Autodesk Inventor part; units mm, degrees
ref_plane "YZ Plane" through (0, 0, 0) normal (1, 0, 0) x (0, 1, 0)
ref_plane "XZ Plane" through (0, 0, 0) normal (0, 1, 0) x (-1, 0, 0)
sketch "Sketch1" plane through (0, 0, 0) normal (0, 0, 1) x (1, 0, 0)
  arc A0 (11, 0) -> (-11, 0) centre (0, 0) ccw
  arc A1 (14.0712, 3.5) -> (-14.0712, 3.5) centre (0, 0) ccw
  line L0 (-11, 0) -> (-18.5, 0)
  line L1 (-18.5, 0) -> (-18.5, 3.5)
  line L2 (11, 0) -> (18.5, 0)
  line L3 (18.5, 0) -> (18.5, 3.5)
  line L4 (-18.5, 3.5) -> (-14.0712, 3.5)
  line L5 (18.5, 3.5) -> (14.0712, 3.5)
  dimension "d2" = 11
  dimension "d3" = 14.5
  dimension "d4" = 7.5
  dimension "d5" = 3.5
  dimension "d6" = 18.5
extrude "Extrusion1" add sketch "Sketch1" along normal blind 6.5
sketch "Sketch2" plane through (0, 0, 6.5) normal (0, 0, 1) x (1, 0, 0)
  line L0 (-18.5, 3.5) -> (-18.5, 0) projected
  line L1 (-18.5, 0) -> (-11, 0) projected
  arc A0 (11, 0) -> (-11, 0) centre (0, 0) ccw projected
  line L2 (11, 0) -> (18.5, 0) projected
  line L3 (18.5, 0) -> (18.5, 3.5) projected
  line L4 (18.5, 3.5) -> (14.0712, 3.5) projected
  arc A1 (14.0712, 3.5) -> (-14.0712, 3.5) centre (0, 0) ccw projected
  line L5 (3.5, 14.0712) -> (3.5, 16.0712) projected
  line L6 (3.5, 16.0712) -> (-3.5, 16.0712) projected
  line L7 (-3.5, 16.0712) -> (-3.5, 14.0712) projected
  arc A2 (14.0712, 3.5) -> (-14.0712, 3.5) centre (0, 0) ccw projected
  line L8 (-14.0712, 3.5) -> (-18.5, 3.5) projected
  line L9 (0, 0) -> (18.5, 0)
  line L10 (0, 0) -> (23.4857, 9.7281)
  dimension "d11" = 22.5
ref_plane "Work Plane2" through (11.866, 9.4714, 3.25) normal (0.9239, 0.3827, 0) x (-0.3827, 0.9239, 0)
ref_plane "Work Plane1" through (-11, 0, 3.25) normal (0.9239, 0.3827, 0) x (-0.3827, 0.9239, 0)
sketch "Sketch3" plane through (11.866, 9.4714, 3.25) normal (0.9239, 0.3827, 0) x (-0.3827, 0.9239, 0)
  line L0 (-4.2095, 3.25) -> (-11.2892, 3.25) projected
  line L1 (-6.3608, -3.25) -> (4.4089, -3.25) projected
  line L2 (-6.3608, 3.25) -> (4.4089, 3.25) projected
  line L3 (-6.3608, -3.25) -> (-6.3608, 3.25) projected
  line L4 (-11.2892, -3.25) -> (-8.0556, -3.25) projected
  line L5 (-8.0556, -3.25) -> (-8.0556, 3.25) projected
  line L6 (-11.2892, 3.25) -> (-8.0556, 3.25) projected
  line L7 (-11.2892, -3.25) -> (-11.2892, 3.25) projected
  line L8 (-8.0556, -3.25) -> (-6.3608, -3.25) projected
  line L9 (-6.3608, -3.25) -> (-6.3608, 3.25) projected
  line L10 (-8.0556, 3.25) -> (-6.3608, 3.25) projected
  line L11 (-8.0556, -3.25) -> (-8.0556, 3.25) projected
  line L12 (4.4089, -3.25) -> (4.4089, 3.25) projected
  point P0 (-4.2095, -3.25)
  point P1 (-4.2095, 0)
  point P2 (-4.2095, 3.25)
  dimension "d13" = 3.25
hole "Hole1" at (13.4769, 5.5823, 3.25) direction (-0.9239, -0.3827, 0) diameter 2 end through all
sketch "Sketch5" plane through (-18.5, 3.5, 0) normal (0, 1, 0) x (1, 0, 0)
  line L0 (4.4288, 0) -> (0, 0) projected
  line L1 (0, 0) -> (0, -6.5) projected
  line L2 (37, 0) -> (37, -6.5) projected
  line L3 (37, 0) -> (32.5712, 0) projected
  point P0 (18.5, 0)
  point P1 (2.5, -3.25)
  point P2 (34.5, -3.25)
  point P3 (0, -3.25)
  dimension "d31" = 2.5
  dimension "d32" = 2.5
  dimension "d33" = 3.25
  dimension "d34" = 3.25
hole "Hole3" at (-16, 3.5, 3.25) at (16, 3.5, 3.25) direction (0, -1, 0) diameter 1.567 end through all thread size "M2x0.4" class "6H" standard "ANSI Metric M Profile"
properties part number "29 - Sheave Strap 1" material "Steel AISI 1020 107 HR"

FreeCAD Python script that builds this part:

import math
import FreeCAD as App
import Part
import Sketcher

doc = App.newDocument("Part")
params = doc.addObject("Spreadsheet::Sheet", "Params")
for row, (alias, value) in enumerate([
    ("sketch1_radius", "11 mm"),
    ("sketch1_radius2", "14.5 mm"),
    ("sketch1_width", "7.5 mm"),
    ("sketch1_height", "3.5 mm"),
    ("pad1_length", "6.5 mm"),
    ("sketch2_diameter", "2 mm"),
    ("hole_diameter", "2 mm"),
    ("hole2_diameter", "1.567 mm"),
], start=1):
    params.set(f"A{row}", alias)
    params.set(f"B{row}", "=" + value)
    params.setAlias(f"B{row}", alias)

body = doc.addObject("PartDesign::Body", "Body")

# Sketch on XY plane
sketch1 = body.newObject("Sketcher::SketchObject", "Sketch")
sketch1.AttachmentSupport = (doc.getObject("XY_Plane"), [""])
sketch1.MapMode = "FlatFace"
sketch1.addGeometry(Part.ArcOfCircle(Part.Circle(App.Vector(0, 0, 0), App.Vector(0, 0, 1), 11), math.radians(0), math.radians(180)), False)
sketch1.addGeometry(Part.LineSegment(App.Vector(11, 0, 0), App.Vector(18.5, 0, 0)), False)
sketch1.addGeometry(Part.LineSegment(App.Vector(18.5, 0, 0), App.Vector(18.5, 3.5, 0)), False)
sketch1.addGeometry(Part.LineSegment(App.Vector(18.5, 3.5, 0), App.Vector(14.1, 3.5, 0)), False)
sketch1.addGeometry(Part.ArcOfCircle(Part.Circle(App.Vector(0, 0, 0), App.Vector(0, 0, 1), 14.5), math.radians(14), math.radians(166)), False)
sketch1.addGeometry(Part.LineSegment(App.Vector(-14.1, 3.5, 0), App.Vector(-18.5, 3.5, 0)), False)
sketch1.addGeometry(Part.LineSegment(App.Vector(-18.5, 3.5, 0), App.Vector(-18.5, 0, 0)), False)
sketch1.addGeometry(Part.LineSegment(App.Vector(-18.5, 0, 0), App.Vector(-11, 0, 0)), False)
sketch1.addConstraint(Sketcher.Constraint("Coincident", 0, 1, 1, 1))
sketch1.addConstraint(Sketcher.Constraint("Coincident", 1, 2, 2, 1))
sketch1.addConstraint(Sketcher.Constraint("Coincident", 2, 2, 3, 1))
sketch1.addConstraint(Sketcher.Constraint("Coincident", 3, 2, 4, 1))
sketch1.addConstraint(Sketcher.Constraint("Coincident", 4, 2, 5, 1))
sketch1.addConstraint(Sketcher.Constraint("Coincident", 5, 2, 6, 1))
sketch1.addConstraint(Sketcher.Constraint("Coincident", 6, 2, 7, 1))
sketch1.addConstraint(Sketcher.Constraint("Coincident", 7, 2, 0, 2))
sketch1.addConstraint(Sketcher.Constraint("Horizontal", 1))
sketch1.addConstraint(Sketcher.Constraint("Vertical", 2))
sketch1.addConstraint(Sketcher.Constraint("Horizontal", 3))
sketch1.addConstraint(Sketcher.Constraint("Horizontal", 5))
sketch1.addConstraint(Sketcher.Constraint("Vertical", 6))
sketch1.addConstraint(Sketcher.Constraint("Horizontal", 7))
sketch1.addConstraint(Sketcher.Constraint("Coincident", 0, 3, -1, 1))
sketch1.addConstraint(Sketcher.Constraint("Coincident", 4, 3, -1, 1))
sketch1.addConstraint(Sketcher.Constraint("Symmetric", 1, 2, 6, 2, -1, 1))
sketch1.addConstraint(Sketcher.Constraint("PointOnObject", 0, 1, -1))
sketch1.addConstraint(Sketcher.Constraint("Horizontal", 3, 2, 4, 2))
sketch1.addConstraint(Sketcher.Constraint("Radius", 0, 11.0))
sketch1.addConstraint(Sketcher.Constraint("Radius", 4, 14.5))
sketch1.addConstraint(Sketcher.Constraint("DistanceX", 1, 1, 1, 2, 7.5))
sketch1.addConstraint(Sketcher.Constraint("DistanceY", 2, 1, 2, 2, 3.5))
sketch1.setExpression("Constraints[19]", "Params.sketch1_radius")
sketch1.setExpression("Constraints[20]", "Params.sketch1_radius2")
sketch1.setExpression("Constraints[21]", "Params.sketch1_width")
sketch1.setExpression("Constraints[22]", "Params.sketch1_height")
pad1 = body.newObject("PartDesign::Pad", "Pad")
pad1.Profile = sketch1
pad1.setExpression("Length", "Params.pad1_length")

# Sketch on an angled plane
sketch2 = body.newObject("Sketcher::SketchObject", "Sketch001")
sketch2.Placement = App.Placement(App.Vector(13.476895, 5.582313, 0), App.Rotation(App.Vector(-0.382683432, 0.923879533, 0), App.Vector(0, 0, 1.000000001), App.Vector(0.923879533, 0.382683432, 0), "ZXY"))
sketch2.addGeometry(Part.Circle(App.Vector(0, 3.3, 0), App.Vector(0, 0, 1), 1), False)
sketch2.addConstraint(Sketcher.Constraint("PointOnObject", 0, 3, -2))
sketch2.addConstraint(Sketcher.Constraint("Diameter", 0, 2.0))
sketch2.addConstraint(Sketcher.Constraint("DistanceY", -1, 1, 0, 3, 3.25))
sketch2.setExpression("Constraints[1]", "Params.sketch2_diameter")
doc.recompute()
hole = body.newObject("PartDesign::Hole", "Hole")
hole.Profile = sketch2
hole.ThreadType = "None"
hole.setExpression("Diameter", "Params.hole_diameter")
hole.DepthType = "ThroughAll"

# Sketch on XZ plane
sketch3 = body.newObject("Sketcher::SketchObject", "Sketch002")
sketch3.AttachmentSupport = (doc.getObject("XZ_Plane"), [""])
sketch3.MapMode = "FlatFace"
sketch3.AttachmentOffset = App.Placement(App.Vector(0, 0, -3.5), App.Rotation())
sketch3.addGeometry(Part.Circle(App.Vector(-16, 3.2, 0), App.Vector(0, 0, 1), 0.8), False)
sketch3.addGeometry(Part.Circle(App.Vector(16, 3.2, 0), App.Vector(0, 0, 1), 0.8), False)
sketch3.addConstraint(Sketcher.Constraint("Equal", 0, 1))
sketch3.addConstraint(Sketcher.Constraint("Symmetric", 0, 3, 1, 3, -2))
sketch3.addConstraint(Sketcher.Constraint("Diameter", 0, 1.567))
sketch3.addConstraint(Sketcher.Constraint("DistanceX", 0, 3, -1, 1, 16.0))
sketch3.addConstraint(Sketcher.Constraint("DistanceY", -1, 1, 0, 3, 3.25))
doc.recompute()
hole2 = body.newObject("PartDesign::Hole", "Hole001")
hole2.Profile = sketch3
hole2.ThreadType = "None"
hole2.setExpression("Diameter", "Params.hole2_diameter")
hole2.DepthType = "ThroughAll"
hole2.Reversed = True

doc.recompute()
